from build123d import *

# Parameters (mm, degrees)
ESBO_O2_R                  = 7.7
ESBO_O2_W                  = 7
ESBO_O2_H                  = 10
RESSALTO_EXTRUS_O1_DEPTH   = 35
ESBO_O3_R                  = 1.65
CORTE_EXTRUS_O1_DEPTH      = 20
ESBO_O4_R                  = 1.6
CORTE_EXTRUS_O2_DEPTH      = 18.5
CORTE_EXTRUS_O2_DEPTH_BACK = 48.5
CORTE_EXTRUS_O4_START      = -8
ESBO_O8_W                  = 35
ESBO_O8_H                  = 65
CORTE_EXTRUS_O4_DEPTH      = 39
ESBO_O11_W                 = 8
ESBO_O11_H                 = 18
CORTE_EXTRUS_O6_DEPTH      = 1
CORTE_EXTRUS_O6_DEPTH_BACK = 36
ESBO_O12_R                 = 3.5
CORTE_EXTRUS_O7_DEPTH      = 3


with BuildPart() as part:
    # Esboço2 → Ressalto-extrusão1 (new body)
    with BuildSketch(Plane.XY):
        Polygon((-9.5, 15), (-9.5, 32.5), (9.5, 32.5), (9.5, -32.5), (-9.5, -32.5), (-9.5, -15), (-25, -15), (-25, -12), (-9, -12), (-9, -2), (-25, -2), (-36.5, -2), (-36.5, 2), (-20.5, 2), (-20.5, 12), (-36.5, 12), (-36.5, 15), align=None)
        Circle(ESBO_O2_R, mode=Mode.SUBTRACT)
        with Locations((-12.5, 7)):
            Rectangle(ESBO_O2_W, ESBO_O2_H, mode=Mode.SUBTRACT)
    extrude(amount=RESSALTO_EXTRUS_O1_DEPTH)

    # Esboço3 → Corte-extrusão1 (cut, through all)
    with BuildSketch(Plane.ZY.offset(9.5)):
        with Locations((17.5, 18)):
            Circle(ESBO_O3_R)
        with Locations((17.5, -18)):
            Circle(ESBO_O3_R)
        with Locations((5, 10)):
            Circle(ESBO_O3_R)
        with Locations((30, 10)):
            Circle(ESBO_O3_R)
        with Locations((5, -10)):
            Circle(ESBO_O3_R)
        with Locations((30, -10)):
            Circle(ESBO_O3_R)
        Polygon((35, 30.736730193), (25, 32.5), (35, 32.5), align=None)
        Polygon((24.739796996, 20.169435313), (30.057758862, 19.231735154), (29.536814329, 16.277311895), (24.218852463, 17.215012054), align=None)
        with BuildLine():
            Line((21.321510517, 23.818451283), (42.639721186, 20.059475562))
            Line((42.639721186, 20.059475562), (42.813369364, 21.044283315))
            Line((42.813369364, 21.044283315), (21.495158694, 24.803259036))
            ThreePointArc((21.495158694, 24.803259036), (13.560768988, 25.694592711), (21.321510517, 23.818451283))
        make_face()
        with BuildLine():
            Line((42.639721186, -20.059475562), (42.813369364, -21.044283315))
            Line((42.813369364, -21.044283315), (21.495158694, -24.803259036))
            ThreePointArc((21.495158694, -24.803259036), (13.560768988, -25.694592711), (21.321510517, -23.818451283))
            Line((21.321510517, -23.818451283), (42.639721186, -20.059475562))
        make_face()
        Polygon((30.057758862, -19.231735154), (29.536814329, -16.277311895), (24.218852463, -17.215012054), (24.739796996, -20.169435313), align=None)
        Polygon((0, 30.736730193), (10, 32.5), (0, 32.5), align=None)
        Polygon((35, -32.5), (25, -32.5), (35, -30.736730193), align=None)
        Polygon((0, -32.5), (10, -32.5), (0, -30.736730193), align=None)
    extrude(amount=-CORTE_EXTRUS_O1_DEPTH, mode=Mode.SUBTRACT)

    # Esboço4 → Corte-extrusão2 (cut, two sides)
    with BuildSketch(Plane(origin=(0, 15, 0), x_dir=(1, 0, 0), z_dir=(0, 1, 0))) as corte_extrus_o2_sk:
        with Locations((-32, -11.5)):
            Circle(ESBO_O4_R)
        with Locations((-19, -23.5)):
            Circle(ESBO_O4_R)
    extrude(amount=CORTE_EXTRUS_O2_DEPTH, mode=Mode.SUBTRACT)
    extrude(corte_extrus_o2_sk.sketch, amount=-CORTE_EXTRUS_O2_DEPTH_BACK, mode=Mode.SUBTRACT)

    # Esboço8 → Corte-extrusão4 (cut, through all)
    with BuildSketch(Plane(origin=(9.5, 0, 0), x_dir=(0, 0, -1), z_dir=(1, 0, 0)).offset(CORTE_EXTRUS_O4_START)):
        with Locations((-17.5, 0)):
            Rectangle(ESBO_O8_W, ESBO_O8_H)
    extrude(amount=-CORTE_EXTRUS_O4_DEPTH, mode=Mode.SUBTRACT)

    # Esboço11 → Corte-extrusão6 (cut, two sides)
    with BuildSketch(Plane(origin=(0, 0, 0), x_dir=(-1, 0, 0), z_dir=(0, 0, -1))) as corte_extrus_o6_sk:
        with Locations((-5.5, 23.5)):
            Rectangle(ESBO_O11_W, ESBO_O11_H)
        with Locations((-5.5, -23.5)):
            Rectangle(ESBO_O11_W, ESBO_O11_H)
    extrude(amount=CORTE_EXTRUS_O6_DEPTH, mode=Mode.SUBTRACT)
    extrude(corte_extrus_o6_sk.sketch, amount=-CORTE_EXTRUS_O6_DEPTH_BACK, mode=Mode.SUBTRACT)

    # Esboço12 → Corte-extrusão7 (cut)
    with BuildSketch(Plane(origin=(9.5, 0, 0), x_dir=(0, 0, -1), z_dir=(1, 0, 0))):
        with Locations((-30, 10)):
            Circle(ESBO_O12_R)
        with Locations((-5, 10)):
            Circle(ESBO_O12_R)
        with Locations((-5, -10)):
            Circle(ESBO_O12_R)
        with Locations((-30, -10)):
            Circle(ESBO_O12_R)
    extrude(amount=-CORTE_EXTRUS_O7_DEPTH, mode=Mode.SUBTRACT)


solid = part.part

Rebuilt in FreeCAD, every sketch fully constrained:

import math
import FreeCAD as App
import Part
import Sketcher
from FreeCAD import Vector
Q = App.Units.Quantity


def add_polygon(sketch, points):
    """Adds a closed chain of lines whose ends are joined by coincident constraints."""
    first, n = sketch.GeometryCount, len(points)
    for a, b in zip(points, points[1:] + points[:1]):
        sketch.addGeometry(Part.LineSegment(App.Vector(*a, 0), App.Vector(*b, 0)), False)
    for i in range(n):
        sketch.addConstraint(Sketcher.Constraint("Coincident", first + i, 2, first + (i + 1) % n, 1))

doc = App.newDocument("Part")
params = doc.addObject("Spreadsheet::Sheet", "Params")
for row, (alias, value) in enumerate([
    ("sketch1_diameter", "15.4 mm"),
    ("sketch1_width", "27 mm"),
    ("sketch1_width2", "16 mm"),
    ("sketch1_width3", "19 mm"),
    ("sketch1_width4", "7 mm"),
    ("pad1_length", "35 mm"),
    ("sketch2_radius", "4 mm"),
    ("sketch2_diameter", "3.3 mm"),
    ("sketch2_height", "10 mm"),
    ("sketch2_length", "3 mm"),
    ("sketch2_length2", "1 mm"),
    ("sketch3_diameter", "3.2 mm"),
    ("sketch4_width", "65 mm"),
    ("sketch4_height", "35 mm"),
    ("sketch5_width", "8 mm"),
    ("sketch5_height", "18 mm"),
    ("sketch6_diameter", "7 mm"),
    ("pocket5_length", "3 mm"),
], start=1):
    params.set(f"A{row}", alias)
    params.set(f"B{row}", "=" + value)
    params.setAlias(f"B{row}", alias)

body = doc.addObject("PartDesign::Body", "Body")

# Sketch on XY plane
sketch1 = body.newObject("Sketcher::SketchObject", "Sketch")
sketch1.AttachmentSupport = (doc.getObject("XY_Plane"), [""])
sketch1.MapMode = "FlatFace"
add_polygon(sketch1, [(-9.5, 32.5), (-9.5, 15), (-36.5, 15), (-36.5, 12), (-20.5, 12), (-20.5, 2), (-36.5, 2), (-36.5, -2), (-9, -2), (-9, -12), (-25, -12), (-25, -15), (-9.5, -15), (-9.5, -32.5), (9.5, -32.5), (9.5, 32.5)])  # lines 0-15
sketch1.addGeometry(Part.Circle(Vector(0, 0, 0), Vector(0, 0, 1), 7.7), False)  # 16
add_polygon(sketch1, [(-16, 2), (-16, 12), (-9, 12), (-9, 2)])  # lines 17-20
sketch1.addConstraint(Sketcher.Constraint("Vertical", 0))
sketch1.addConstraint(Sketcher.Constraint("Horizontal", 1))
sketch1.addConstraint(Sketcher.Constraint("Vertical", 2))
sketch1.addConstraint(Sketcher.Constraint("Horizontal", 3))
sketch1.addConstraint(Sketcher.Constraint("Vertical", 4))
sketch1.addConstraint(Sketcher.Constraint("Horizontal", 5))
sketch1.addConstraint(Sketcher.Constraint("Vertical", 6))
sketch1.addConstraint(Sketcher.Constraint("Horizontal", 7))
sketch1.addConstraint(Sketcher.Constraint("Vertical", 8))
sketch1.addConstraint(Sketcher.Constraint("Horizontal", 9))
sketch1.addConstraint(Sketcher.Constraint("Vertical", 10))
sketch1.addConstraint(Sketcher.Constraint("Horizontal", 11))
sketch1.addConstraint(Sketcher.Constraint("Vertical", 12))
sketch1.addConstraint(Sketcher.Constraint("Horizontal", 13))
sketch1.addConstraint(Sketcher.Constraint("Vertical", 14))
sketch1.addConstraint(Sketcher.Constraint("Horizontal", 15))
sketch1.addConstraint(Sketcher.Constraint("Vertical", 17))
sketch1.addConstraint(Sketcher.Constraint("Horizontal", 18))
sketch1.addConstraint(Sketcher.Constraint("Vertical", 19))
sketch1.addConstraint(Sketcher.Constraint("Horizontal", 20))
sketch1.addConstraint(Sketcher.Constraint("Coincident", 16, 3, -1, 1))
sketch1.addConstraint(Sketcher.Constraint("Symmetric", 12, 2, 14, 2, -1, 1))
sketch1.addConstraint(Sketcher.Constraint("Symmetric", 0, 2, 11, 2, -1))
sketch1.addConstraint(Sketcher.Constraint("Symmetric", 8, 2, 18, 2, -1))
sketch1.addConstraint(Sketcher.Constraint("Horizontal", 3, 2, 17, 2))
sketch1.addConstraint(Sketcher.Constraint("Horizontal", 5, 2, 19, 2))
sketch1.addConstraint(Sketcher.Constraint("Vertical", 2, 2, 5, 2))
sketch1.addConstraint(Sketcher.Constraint("Equal", 5, 9))
sketch1.addConstraint(Sketcher.Constraint("Equal", 4, 8))
sketch1.addConstraint(Sketcher.Constraint("Diameter", 16, 15.4))
sketch1.addConstraint(Sketcher.Constraint("DistanceX", 1, 2, 1, 1, 27.0))
sketch1.addConstraint(Sketcher.Constraint("DistanceX", 3, 1, 3, 2, 16.0))
sketch1.addConstraint(Sketcher.Constraint("DistanceX", 13, 1, 13, 2, 19.0))
sketch1.addConstraint(Sketcher.Constraint("DistanceX", 18, 1, 18, 2, 7.0))
sketch1.addConstraint(Sketcher.Constraint("DistanceY", 2, 2, 2, 1, 3.0))
sketch1.addConstraint(Sketcher.Constraint("DistanceY", 4, 2, 4, 1, 10.0))
sketch1.addConstraint(Sketcher.Constraint("DistanceY", 6, 2, 6, 1, 4.0))
sketch1.addConstraint(Sketcher.Constraint("DistanceY", 14, 1, 14, 2, 65.0))
sketch1.addConstraint(Sketcher.Constraint("DistanceX", 7, 1, 7, 2, 27.5))
sketch1.setExpression("Constraints[49]", "Params.sketch1_diameter")
sketch1.setExpression("Constraints[50]", "Params.sketch1_width")
sketch1.setExpression("Constraints[51]", "Params.sketch1_width2")
sketch1.setExpression("Constraints[52]", "Params.sketch1_width3")
sketch1.setExpression("Constraints[53]", "Params.sketch1_width4")
pad1 = body.newObject("PartDesign::Pad", "Pad")
pad1.Profile = sketch1
pad1.setExpression("Length", "Params.pad1_length")

# Sketch on YZ plane
sketch2 = body.newObject("Sketcher::SketchObject", "Sketch001")
sketch2.AttachmentSupport = (doc.getObject("YZ_Plane"), [""])
sketch2.MapMode = "FlatFace"
sketch2.AttachmentOffset = App.Placement(Vector(0, 0, -9.5), App.Rotation())
sketch2.addGeometry(Part.Circle(Vector(18, 17.5, 0), Vector(0, 0, 1), 1.6), False)  # 0
sketch2.addGeometry(Part.Circle(Vector(-18, 17.5, 0), Vector(0, 0, 1), 1.6), False)  # 1
sketch2.addGeometry(Part.Circle(Vector(10, 5, 0), Vector(0, 0, 1), 1.6), False)  # 2
sketch2.addGeometry(Part.Circle(Vector(10, 30, 0), Vector(0, 0, 1), 1.6), False)  # 3
sketch2.addGeometry(Part.Circle(Vector(-10, 5, 0), Vector(0, 0, 1), 1.6), False)  # 4
sketch2.addGeometry(Part.Circle(Vector(-10, 30, 0), Vector(0, 0, 1), 1.6), False)  # 5
add_polygon(sketch2, [(32.5, 25), (30.7, 35), (32.5, 35)])  # lines 6-8
add_polygon(sketch2, [(19.2, 30.1), (20.2, 24.7), (17.2, 24.2), (16.3, 29.5)])  # lines 9-12
sketch2.addGeometry(Part.LineSegment(Vector(23.8, 21.3, 0), Vector(20.1, 42.6, 0)), False)  # 13
sketch2.addGeometry(Part.LineSegment(Vector(20.1, 42.6, 0), Vector(21, 42.8, 0)), False)  # 14
sketch2.addGeometry(Part.LineSegment(Vector(21, 42.8, 0), Vector(24.8, 21.5, 0)), False)  # 15
sketch2.addGeometry(Part.ArcOfCircle(Part.Circle(Vector(25, 17.5, 0), Vector(0, 0, 1), 4), math.radians(107), math.radians(453)), False)  # 16
sketch2.addGeometry(Part.LineSegment(Vector(-21, 42.8, 0), Vector(-20.1, 42.6, 0)), False)  # 17
sketch2.addGeometry(Part.LineSegment(Vector(-20.1, 42.6, 0), Vector(-23.8, 21.3, 0)), False)  # 18
sketch2.addGeometry(Part.ArcOfCircle(Part.Circle(Vector(-25, 17.5, 0), Vector(0, 0, 1), 4), math.radians(87), math.radians(433)), False)  # 19
sketch2.addGeometry(Part.LineSegment(Vector(-24.8, 21.5, 0), Vector(-21, 42.8, 0)), False)  # 20
add_polygon(sketch2, [(-19.2, 30.1), (-16.3, 29.5), (-17.2, 24.2), (-20.2, 24.7)])  # lines 21-24
add_polygon(sketch2, [(30.7, 0), (32.5, 10), (32.5, 0)])  # lines 25-27
add_polygon(sketch2, [(-32.5, 25), (-32.5, 35), (-30.7, 35)])  # lines 28-30
add_polygon(sketch2, [(-32.5, 0), (-32.5, 10), (-30.7, 0)])  # lines 31-33
sketch2.addConstraint(Sketcher.Constraint("Coincident", 13, 2, 14, 1))
sketch2.addConstraint(Sketcher.Constraint("Coincident", 14, 2, 15, 1))
sketch2.addConstraint(Sketcher.Constraint("Coincident", 15, 2, 16, 2))
sketch2.addConstraint(Sketcher.Constraint("Coincident", 16, 1, 13, 1))
sketch2.addConstraint(Sketcher.Constraint("Coincident", 17, 2, 18, 1))
sketch2.addConstraint(Sketcher.Constraint("Coincident", 18, 2, 19, 2))
sketch2.addConstraint(Sketcher.Constraint("Coincident", 19, 1, 20, 1))
sketch2.addConstraint(Sketcher.Constraint("Coincident", 20, 2, 17, 1))
sketch2.addConstraint(Sketcher.Constraint("Horizontal", 7))
sketch2.addConstraint(Sketcher.Constraint("Vertical", 8))
sketch2.addConstraint(Sketcher.Constraint("Vertical", 26))
sketch2.addConstraint(Sketcher.Constraint("Horizontal", 27))
sketch2.addConstraint(Sketcher.Constraint("Vertical", 28))
sketch2.addConstraint(Sketcher.Constraint("Horizontal", 29))
sketch2.addConstraint(Sketcher.Constraint("Vertical", 31))
sketch2.addConstraint(Sketcher.Constraint("Horizontal", 33))
sketch2.addConstraint(Sketcher.Constraint("Equal", 0, 1))
sketch2.addConstraint(Sketcher.Constraint("Equal", 1, 2))
sketch2.addConstraint(Sketcher.Constraint("Equal", 2, 3))
sketch2.addConstraint(Sketcher.Constraint("Equal", 3, 4))
sketch2.addConstraint(Sketcher.Constraint("Equal", 4, 5))
sketch2.addConstraint(Sketcher.Constraint("Equal", 16, 19))
sketch2.addConstraint(Sketcher.Constraint("Symmetric", 27, 2, 32, 2, -1, 1))
sketch2.addConstraint(Sketcher.Constraint("Symmetric", 0, 3, 1, 3, -2))
sketch2.addConstraint(Sketcher.Constraint("Symmetric", 2, 3, 4, 3, -2))
sketch2.addConstraint(Sketcher.Constraint("Symmetric", 3, 3, 5, 3, -2))
sketch2.addConstraint(Sketcher.Constraint("Symmetric", 16, 3, 19, 3, -2))
sketch2.addConstraint(Sketcher.Constraint("Symmetric", 13, 2, 17, 2, -2))
sketch2.addConstraint(Sketcher.Constraint("Symmetric", 14, 2, 20, 2, -2))
sketch2.addConstraint(Sketcher.Constraint("Symmetric", 11, 2, 21, 2, -2))
sketch2.addConstraint(Sketcher.Constraint("Symmetric", 10, 2, 22, 2, -2))
sketch2.addConstraint(Sketcher.Constraint("Symmetric", 9, 2, 23, 2, -2))
sketch2.addConstraint(Sketcher.Constraint("Symmetric", 12, 2, 24, 2, -2))
sketch2.addConstraint(Sketcher.Constraint("Symmetric", 7, 2, 28, 2, -2))
sketch2.addConstraint(Sketcher.Constraint("Symmetric", 25, 2, 31, 2, -2))
sketch2.addConstraint(Sketcher.Constraint("PointOnObject", 26, 2, -1))
sketch2.addConstraint(Sketcher.Constraint("Parallel", 6, 9))
sketch2.addConstraint(Sketcher.Constraint("Perpendicular", 9, 10))
sketch2.addConstraint(Sketcher.Constraint("Perpendicular", 10, 11))
sketch2.addConstraint(Sketcher.Constraint("Perpendicular", 11, 12))
sketch2.addConstraint(Sketcher.Constraint("Perpendicular", 12, 13))
sketch2.addConstraint(Sketcher.Constraint("Perpendicular", 13, 14))
sketch2.addConstraint(Sketcher.Constraint("Perpendicular", 14, 15))
sketch2.addConstraint(Sketcher.Constraint("Perpendicular", 17, 18))
sketch2.addConstraint(Sketcher.Constraint("Parallel", 18, 20))
sketch2.addConstraint(Sketcher.Constraint("Parallel", 24, 25))
sketch2.addConstraint(Sketcher.Constraint("Parallel", 25, 30))
sketch2.addConstraint(Sketcher.Constraint("Horizontal", 1, 3, 16, 3))
sketch2.addConstraint(Sketcher.Constraint("Horizontal", 8, 2, 30, 2))
sketch2.addConstraint(Sketcher.Constraint("Vertical", 2, 3, 3, 3))
sketch2.addConstraint(Sketcher.Constraint("Vertical", 8, 2, 25, 2))
sketch2.addConstraint(Sketcher.Constraint("Vertical", 6, 2, 27, 2))
sketch2.addConstraint(Sketcher.Constraint("Equal", 13, 15))
sketch2.addConstraint(Sketcher.Constraint("Radius", 16, 4.0))
sketch2.addConstraint(Sketcher.Constraint("Diameter", 0, 3.3))
sketch2.addConstraint(Sketcher.Constraint("DistanceY", 8, 2, 8, 1, 10.0))
sketch2.addConstraint(Sketcher.Constraint("Angle", 6, Q("100 deg")))
sketch2.addConstraint(Sketcher.Constraint("Distance", 10, 3.0))
sketch2.addConstraint(Sketcher.Constraint("Distance", 14, 1.0))
sketch2.addConstraint(Sketcher.Constraint("DistanceX", -1, 1, 0, 3, 18.0))
sketch2.addConstraint(Sketcher.Constraint("DistanceX", -1, 1, 2, 3, 10.0))
sketch2.addConstraint(Sketcher.Constraint("DistanceY", -1, 1, 2, 3, 5.0))
sketch2.addConstraint(Sketcher.Constraint("DistanceY", -1, 1, 3, 3, 30.0))
sketch2.addConstraint(Sketcher.Constraint("DistanceX", -1, 1, 16, 3, 25.0))
sketch2.addConstraint(Sketcher.Constraint("DistanceY", -1, 1, 6, 2, 35.0))
sketch2.addConstraint(Sketcher.Constraint("Distance", 9, 5.4))
sketch2.addConstraint(Sketcher.Constraint("DistanceY", -1, 1, 0, 3, 17.5))
sketch2.addConstraint(Sketcher.Constraint("DistanceX", -1, 1, 7, 2, 32.5))
sketch2.addConstraint(Sketcher.Constraint("Distance", 13, 21.647078))
sketch2.addConstraint(Sketcher.Constraint("DistanceX", -1, 1, 11, 2, 16.277312))
sketch2.addConstraint(Sketcher.Constraint("DistanceY", -1, 1, 12, 2, 30.057759))
sketch2.setExpression("Constraints[73]", "Params.sketch2_radius")
sketch2.setExpression("Constraints[74]", "Params.sketch2_diameter")
sketch2.setExpression("Constraints[75]", "Params.sketch2_height")
sketch2.setExpression("Constraints[77]", "Params.sketch2_length")
sketch2.setExpression("Constraints[78]", "Params.sketch2_length2")
pocket1 = body.newObject("PartDesign::Pocket", "Pocket")
pocket1.Profile = sketch2
pocket1.Type = "ThroughAll"
pocket1.Reversed = True

# Sketch on XZ plane
sketch3 = body.newObject("Sketcher::SketchObject", "Sketch002")
sketch3.AttachmentSupport = (doc.getObject("XZ_Plane"), [""])
sketch3.MapMode = "FlatFace"
sketch3.AttachmentOffset = App.Placement(Vector(0, 0, -15), App.Rotation())
sketch3.addGeometry(Part.Circle(Vector(-32, 11.5, 0), Vector(0, 0, 1), 1.6), False)
sketch3.addGeometry(Part.Circle(Vector(-19, 23.5, 0), Vector(0, 0, 1), 1.6), False)
sketch3.addConstraint(Sketcher.Constraint("Equal", 0, 1))
sketch3.addConstraint(Sketcher.Constraint("Diameter", 0, 3.2))
sketch3.addConstraint(Sketcher.Constraint("DistanceX", 0, 3, -1, 1, 32.0))
sketch3.addConstraint(Sketcher.Constraint("DistanceX", 1, 3, -1, 1, 19.0))
sketch3.addConstraint(Sketcher.Constraint("DistanceY", 0, 3, 1, 3, 12.0))
sketch3.addConstraint(Sketcher.Constraint("DistanceY", -1, 1, 0, 3, 11.5))
sketch3.setExpression("Constraints[1]", "Params.sketch3_diameter")
pocket2 = body.newObject("PartDesign::Pocket", "Pocket001")
pocket2.Profile = sketch3
pocket2.Type = "ThroughAll"
pocket2.Midplane = True

# Sketch on YZ plane
sketch4 = body.newObject("Sketcher::SketchObject", "Sketch003")
sketch4.AttachmentSupport = (doc.getObject("YZ_Plane"), [""])
sketch4.MapMode = "FlatFace"
sketch4.AttachmentOffset = App.Placement(Vector(0, 0, 1.5), App.Rotation())
add_polygon(sketch4, [(32, 35), (-32, 35), (-32, 0), (32, 0)])  # lines 0-3
sketch4.addConstraint(Sketcher.Constraint("Horizontal", 0))
sketch4.addConstraint(Sketcher.Constraint("Vertical", 1))
sketch4.addConstraint(Sketcher.Constraint("Horizontal", 2))
sketch4.addConstraint(Sketcher.Constraint("Vertical", 3))
sketch4.addConstraint(Sketcher.Constraint("Symmetric", 1, 2, 2, 2, -1, 1))
sketch4.addConstraint(Sketcher.Constraint("DistanceX", 0, 2, 0, 1, 65.0))
sketch4.addConstraint(Sketcher.Constraint("DistanceY", 1, 2, 1, 1, 35.0))
sketch4.setExpression("Constraints[9]", "Params.sketch4_width")
sketch4.setExpression("Constraints[10]", "Params.sketch4_height")
pocket3 = body.newObject("PartDesign::Pocket", "Pocket002")
pocket3.Profile = sketch4
pocket3.Type = "ThroughAll"

# Sketch on XY plane
sketch5 = body.newObject("Sketcher::SketchObject", "Sketch004")
sketch5.AttachmentSupport = (doc.getObject("XY_Plane"), [""])
sketch5.MapMode = "FlatFace"
add_polygon(sketch5, [(10, 32), (10, 14), (2, 14), (2, 32)])  # lines 0-3
add_polygon(sketch5, [(10, -14), (10, -32), (2, -32), (2, -14)])  # lines 4-7
sketch5.addConstraint(Sketcher.Constraint("Vertical", 0))
sketch5.addConstraint(Sketcher.Constraint("Horizontal", 1))
sketch5.addConstraint(Sketcher.Constraint("Vertical", 2))
sketch5.addConstraint(Sketcher.Constraint("Horizontal", 3))
sketch5.addConstraint(Sketcher.Constraint("Vertical", 4))
sketch5.addConstraint(Sketcher.Constraint("Horizontal", 5))
sketch5.addConstraint(Sketcher.Constraint("Vertical", 6))
sketch5.addConstraint(Sketcher.Constraint("Horizontal", 7))
sketch5.addConstraint(Sketcher.Constraint("Symmetric", 3, 2, 4, 2, -1))
sketch5.addConstraint(Sketcher.Constraint("Symmetric", 1, 2, 6, 2, -1))
sketch5.addConstraint(Sketcher.Constraint("DistanceX", 1, 2, 1, 1, 8.0))
sketch5.addConstraint(Sketcher.Constraint("DistanceY", 0, 2, 0, 1, 18.0))
sketch5.addConstraint(Sketcher.Constraint("DistanceY", 4, 2, 0, 2, 47.0))
sketch5.addConstraint(Sketcher.Constraint("DistanceX", -1, 1, 0, 2, 9.5))
sketch5.setExpression("Constraints[18]", "Params.sketch5_width")
sketch5.setExpression("Constraints[19]", "Params.sketch5_height")
pocket4 = body.newObject("PartDesign::Pocket", "Pocket003")
pocket4.Profile = sketch5
pocket4.Type = "ThroughAll"
pocket4.Midplane = True

# Sketch on YZ plane
sketch6 = body.newObject("Sketcher::SketchObject", "Sketch005")
sketch6.AttachmentSupport = (doc.getObject("YZ_Plane"), [""])
sketch6.MapMode = "FlatFace"
sketch6.AttachmentOffset = App.Placement(Vector(0, 0, 9.5), App.Rotation())
sketch6.addGeometry(Part.Circle(Vector(10, 30, 0), Vector(0, 0, 1), 3.5), False)
sketch6.addGeometry(Part.Circle(Vector(10, 5, 0), Vector(0, 0, 1), 3.5), False)
sketch6.addGeometry(Part.Circle(Vector(-10, 5, 0), Vector(0, 0, 1), 3.5), False)
sketch6.addGeometry(Part.Circle(Vector(-10, 30, 0), Vector(0, 0, 1), 3.5), False)
sketch6.addConstraint(Sketcher.Constraint("Equal", 0, 1))
sketch6.addConstraint(Sketcher.Constraint("Equal", 1, 2))
sketch6.addConstraint(Sketcher.Constraint("Equal", 2, 3))
sketch6.addConstraint(Sketcher.Constraint("Symmetric", 1, 3, 2, 3, -2))
sketch6.addConstraint(Sketcher.Constraint("Symmetric", 0, 3, 3, 3, -2))
sketch6.addConstraint(Sketcher.Constraint("Vertical", 0, 3, 1, 3))
sketch6.addConstraint(Sketcher.Constraint("Diameter", 0, 7.0))
sketch6.addConstraint(Sketcher.Constraint("DistanceX", -1, 1, 0, 3, 10.0))
sketch6.addConstraint(Sketcher.Constraint("DistanceY", -1, 1, 0, 3, 30.0))
sketch6.addConstraint(Sketcher.Constraint("DistanceY", -1, 1, 1, 3, 5.0))
sketch6.setExpression("Constraints[6]", "Params.sketch6_diameter")
pocket5 = body.newObject("PartDesign::Pocket", "Pocket004")
pocket5.Profile = sketch6
pocket5.setExpression("Length", "Params.pocket5_length")

doc.recompute()
